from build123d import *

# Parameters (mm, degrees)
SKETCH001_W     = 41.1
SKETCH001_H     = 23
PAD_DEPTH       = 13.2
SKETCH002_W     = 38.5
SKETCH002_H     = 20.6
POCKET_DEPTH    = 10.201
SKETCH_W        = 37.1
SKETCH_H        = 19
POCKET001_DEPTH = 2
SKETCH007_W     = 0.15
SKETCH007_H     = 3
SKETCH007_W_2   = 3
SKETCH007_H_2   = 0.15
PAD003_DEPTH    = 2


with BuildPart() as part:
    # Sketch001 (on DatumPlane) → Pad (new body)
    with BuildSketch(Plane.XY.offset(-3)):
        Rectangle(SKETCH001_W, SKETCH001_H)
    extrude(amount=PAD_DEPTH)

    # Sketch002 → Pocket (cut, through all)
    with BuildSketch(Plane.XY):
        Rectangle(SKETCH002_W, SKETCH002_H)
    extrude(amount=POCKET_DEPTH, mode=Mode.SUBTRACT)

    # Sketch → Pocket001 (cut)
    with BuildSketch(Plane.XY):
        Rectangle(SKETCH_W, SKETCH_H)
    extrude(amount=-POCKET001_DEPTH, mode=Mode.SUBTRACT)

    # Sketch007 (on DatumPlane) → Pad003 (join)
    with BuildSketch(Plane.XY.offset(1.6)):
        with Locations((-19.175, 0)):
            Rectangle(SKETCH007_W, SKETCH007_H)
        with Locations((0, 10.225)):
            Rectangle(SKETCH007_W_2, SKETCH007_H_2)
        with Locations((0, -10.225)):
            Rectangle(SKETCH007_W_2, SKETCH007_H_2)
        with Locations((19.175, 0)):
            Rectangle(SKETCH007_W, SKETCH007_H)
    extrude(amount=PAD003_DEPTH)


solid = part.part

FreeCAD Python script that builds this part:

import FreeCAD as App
import Part
import Sketcher
from FreeCAD import Vector
Q = App.Units.Quantity


def add_polygon(sketch, points):
    """Adds a closed chain of lines whose ends are joined by coincident constraints."""
    first, n = sketch.GeometryCount, len(points)
    for a, b in zip(points, points[1:] + points[:1]):
        sketch.addGeometry(Part.LineSegment(App.Vector(*a, 0), App.Vector(*b, 0)), False)
    for i in range(n):
        sketch.addConstraint(Sketcher.Constraint("Coincident", first + i, 2, first + (i + 1) % n, 1))

doc = App.newDocument("Part")
body = doc.addObject("PartDesign::Body", "Body")

# Sketch on XY plane
sketch1 = body.newObject("Sketcher::SketchObject", "Sketch")
sketch1.AttachmentSupport = (doc.getObject("XY_Plane"), [""])
sketch1.MapMode = "FlatFace"
sketch1.AttachmentOffset = App.Placement(Vector(0, 0, -3), App.Rotation())
add_polygon(sketch1, [(-21, 12), (-21, -12), (21, -12), (21, 12)])  # lines 0-3
sketch1.addConstraint([
    Sketcher.Constraint("Vertical", 0),
    Sketcher.Constraint("Horizontal", 1),
    Sketcher.Constraint("Vertical", 2),
    Sketcher.Constraint("Horizontal", 3),
    Sketcher.Constraint("Symmetric", 0, 2, 2, 2, -1, 1),
    Sketcher.Constraint("DistanceY", 0, 2, 0, 1, Q("23 mm")),
    Sketcher.Constraint("DistanceX", 1, 1, 1, 2, Q("41.1 mm")),
])
pad1 = body.newObject("PartDesign::Pad", "Pad")
pad1.Profile = sketch1
pad1.Length = 13.2

# Sketch on XY plane
sketch2 = body.newObject("Sketcher::SketchObject", "Sketch001")
sketch2.AttachmentSupport = (doc.getObject("XY_Plane"), [""])
sketch2.MapMode = "FlatFace"
add_polygon(sketch2, [(-19, 10), (-19, -10), (19, -10), (19, 10)])  # lines 0-3
sketch2.addConstraint([
    Sketcher.Constraint("Vertical", 0),
    Sketcher.Constraint("Horizontal", 1),
    Sketcher.Constraint("Vertical", 2),
    Sketcher.Constraint("Horizontal", 3),
    Sketcher.Constraint("Symmetric", 0, 2, 2, 2, -1, 1),
    Sketcher.Constraint("DistanceX", 1, 1, 1, 2, Q("38.5 mm")),
    Sketcher.Constraint("DistanceY", 0, 2, 0, 1, Q("20.6 mm")),
])
pocket1 = body.newObject("PartDesign::Pocket", "Pocket")
pocket1.Profile = sketch2
pocket1.Type = "ThroughAll"
pocket1.Reversed = True

# Sketch on XY plane
sketch3 = body.newObject("Sketcher::SketchObject", "Sketch002")
sketch3.AttachmentSupport = (doc.getObject("XY_Plane"), [""])
sketch3.MapMode = "FlatFace"
add_polygon(sketch3, [(-19, 10), (-19, -10), (19, -10), (19, 10)])  # lines 0-3
sketch3.addConstraint([
    Sketcher.Constraint("Vertical", 0),
    Sketcher.Constraint("Horizontal", 1),
    Sketcher.Constraint("Vertical", 2),
    Sketcher.Constraint("Horizontal", 3),
    Sketcher.Constraint("Symmetric", 0, 2, 2, 2, -1, 1),
    Sketcher.Constraint("DistanceY", 0, 2, 0, 1, Q("19 mm")),
    Sketcher.Constraint("DistanceX", 1, 1, 1, 2, Q("37.1 mm")),
])
pocket2 = body.newObject("PartDesign::Pocket", "Pocket001")
pocket2.Profile = sketch3
pocket2.Length = 2

# Sketch on XY plane
sketch4 = body.newObject("Sketcher::SketchObject", "Sketch003")
sketch4.AttachmentSupport = (doc.getObject("XY_Plane"), [""])
sketch4.MapMode = "FlatFace"
sketch4.AttachmentOffset = App.Placement(Vector(0, 0, 1.6), App.Rotation())
add_polygon(sketch4, [(-19.25, 1.5), (-19.25, -1.5), (-19.1, -1.5), (-19.1, 1.5)])  # lines 0-3
add_polygon(sketch4, [(-1.5, 10.3), (-1.5, 10.15), (1.5, 10.15), (1.5, 10.3)])  # lines 4-7
add_polygon(sketch4, [(-1.5, -10.15), (-1.5, -10.3), (1.5, -10.3), (1.5, -10.15)])  # lines 8-11
add_polygon(sketch4, [(19.1, 1.5), (19.1, -1.5), (19.25, -1.5), (19.25, 1.5)])  # lines 12-15
sketch4.addConstraint([
    Sketcher.Constraint("Vertical", 0),
    Sketcher.Constraint("Horizontal", 1),
    Sketcher.Constraint("Vertical", 2),
    Sketcher.Constraint("Horizontal", 3),
    Sketcher.Constraint("Vertical", 4),
    Sketcher.Constraint("Horizontal", 5),
    Sketcher.Constraint("Vertical", 6),
    Sketcher.Constraint("Horizontal", 7),
    Sketcher.Constraint("Vertical", 8),
    Sketcher.Constraint("Horizontal", 9),
    Sketcher.Constraint("Vertical", 10),
    Sketcher.Constraint("Horizontal", 11),
    Sketcher.Constraint("Vertical", 12),
    Sketcher.Constraint("Horizontal", 13),
    Sketcher.Constraint("Vertical", 14),
    Sketcher.Constraint("Horizontal", 15),
    Sketcher.Constraint("Symmetric", 6, 2, 8, 2, -1, 1),
    Sketcher.Constraint("Symmetric", 4, 2, 10, 2, -1, 1),
    Sketcher.Constraint("Symmetric", 2, 2, 12, 2, -1, 1),
    Sketcher.Constraint("Symmetric", 0, 2, 14, 2, -1, 1),
    Sketcher.Constraint("Horizontal", 1, 2, 12, 2),
    Sketcher.Constraint("Vertical", 7, 2, 8, 2),
    Sketcher.Constraint("Equal", 11, 0),
    Sketcher.Constraint("Equal", 15, 4),
    Sketcher.Constraint("DistanceX", 5, 1, 5, 2, Q("3 mm")),
    Sketcher.Constraint("DistanceX", 1, 1, 1, 2, Q("0.15 mm")),
    Sketcher.Constraint("DistanceX", 1, 2, -1, 1, Q("19.1 mm")),
    Sketcher.Constraint("DistanceY", -1, 1, 6, 2, Q("10.3 mm")),
])
pad2 = body.newObject("PartDesign::Pad", "Pad001")
pad2.Profile = sketch4
pad2.Length = 2

doc.recompute()
